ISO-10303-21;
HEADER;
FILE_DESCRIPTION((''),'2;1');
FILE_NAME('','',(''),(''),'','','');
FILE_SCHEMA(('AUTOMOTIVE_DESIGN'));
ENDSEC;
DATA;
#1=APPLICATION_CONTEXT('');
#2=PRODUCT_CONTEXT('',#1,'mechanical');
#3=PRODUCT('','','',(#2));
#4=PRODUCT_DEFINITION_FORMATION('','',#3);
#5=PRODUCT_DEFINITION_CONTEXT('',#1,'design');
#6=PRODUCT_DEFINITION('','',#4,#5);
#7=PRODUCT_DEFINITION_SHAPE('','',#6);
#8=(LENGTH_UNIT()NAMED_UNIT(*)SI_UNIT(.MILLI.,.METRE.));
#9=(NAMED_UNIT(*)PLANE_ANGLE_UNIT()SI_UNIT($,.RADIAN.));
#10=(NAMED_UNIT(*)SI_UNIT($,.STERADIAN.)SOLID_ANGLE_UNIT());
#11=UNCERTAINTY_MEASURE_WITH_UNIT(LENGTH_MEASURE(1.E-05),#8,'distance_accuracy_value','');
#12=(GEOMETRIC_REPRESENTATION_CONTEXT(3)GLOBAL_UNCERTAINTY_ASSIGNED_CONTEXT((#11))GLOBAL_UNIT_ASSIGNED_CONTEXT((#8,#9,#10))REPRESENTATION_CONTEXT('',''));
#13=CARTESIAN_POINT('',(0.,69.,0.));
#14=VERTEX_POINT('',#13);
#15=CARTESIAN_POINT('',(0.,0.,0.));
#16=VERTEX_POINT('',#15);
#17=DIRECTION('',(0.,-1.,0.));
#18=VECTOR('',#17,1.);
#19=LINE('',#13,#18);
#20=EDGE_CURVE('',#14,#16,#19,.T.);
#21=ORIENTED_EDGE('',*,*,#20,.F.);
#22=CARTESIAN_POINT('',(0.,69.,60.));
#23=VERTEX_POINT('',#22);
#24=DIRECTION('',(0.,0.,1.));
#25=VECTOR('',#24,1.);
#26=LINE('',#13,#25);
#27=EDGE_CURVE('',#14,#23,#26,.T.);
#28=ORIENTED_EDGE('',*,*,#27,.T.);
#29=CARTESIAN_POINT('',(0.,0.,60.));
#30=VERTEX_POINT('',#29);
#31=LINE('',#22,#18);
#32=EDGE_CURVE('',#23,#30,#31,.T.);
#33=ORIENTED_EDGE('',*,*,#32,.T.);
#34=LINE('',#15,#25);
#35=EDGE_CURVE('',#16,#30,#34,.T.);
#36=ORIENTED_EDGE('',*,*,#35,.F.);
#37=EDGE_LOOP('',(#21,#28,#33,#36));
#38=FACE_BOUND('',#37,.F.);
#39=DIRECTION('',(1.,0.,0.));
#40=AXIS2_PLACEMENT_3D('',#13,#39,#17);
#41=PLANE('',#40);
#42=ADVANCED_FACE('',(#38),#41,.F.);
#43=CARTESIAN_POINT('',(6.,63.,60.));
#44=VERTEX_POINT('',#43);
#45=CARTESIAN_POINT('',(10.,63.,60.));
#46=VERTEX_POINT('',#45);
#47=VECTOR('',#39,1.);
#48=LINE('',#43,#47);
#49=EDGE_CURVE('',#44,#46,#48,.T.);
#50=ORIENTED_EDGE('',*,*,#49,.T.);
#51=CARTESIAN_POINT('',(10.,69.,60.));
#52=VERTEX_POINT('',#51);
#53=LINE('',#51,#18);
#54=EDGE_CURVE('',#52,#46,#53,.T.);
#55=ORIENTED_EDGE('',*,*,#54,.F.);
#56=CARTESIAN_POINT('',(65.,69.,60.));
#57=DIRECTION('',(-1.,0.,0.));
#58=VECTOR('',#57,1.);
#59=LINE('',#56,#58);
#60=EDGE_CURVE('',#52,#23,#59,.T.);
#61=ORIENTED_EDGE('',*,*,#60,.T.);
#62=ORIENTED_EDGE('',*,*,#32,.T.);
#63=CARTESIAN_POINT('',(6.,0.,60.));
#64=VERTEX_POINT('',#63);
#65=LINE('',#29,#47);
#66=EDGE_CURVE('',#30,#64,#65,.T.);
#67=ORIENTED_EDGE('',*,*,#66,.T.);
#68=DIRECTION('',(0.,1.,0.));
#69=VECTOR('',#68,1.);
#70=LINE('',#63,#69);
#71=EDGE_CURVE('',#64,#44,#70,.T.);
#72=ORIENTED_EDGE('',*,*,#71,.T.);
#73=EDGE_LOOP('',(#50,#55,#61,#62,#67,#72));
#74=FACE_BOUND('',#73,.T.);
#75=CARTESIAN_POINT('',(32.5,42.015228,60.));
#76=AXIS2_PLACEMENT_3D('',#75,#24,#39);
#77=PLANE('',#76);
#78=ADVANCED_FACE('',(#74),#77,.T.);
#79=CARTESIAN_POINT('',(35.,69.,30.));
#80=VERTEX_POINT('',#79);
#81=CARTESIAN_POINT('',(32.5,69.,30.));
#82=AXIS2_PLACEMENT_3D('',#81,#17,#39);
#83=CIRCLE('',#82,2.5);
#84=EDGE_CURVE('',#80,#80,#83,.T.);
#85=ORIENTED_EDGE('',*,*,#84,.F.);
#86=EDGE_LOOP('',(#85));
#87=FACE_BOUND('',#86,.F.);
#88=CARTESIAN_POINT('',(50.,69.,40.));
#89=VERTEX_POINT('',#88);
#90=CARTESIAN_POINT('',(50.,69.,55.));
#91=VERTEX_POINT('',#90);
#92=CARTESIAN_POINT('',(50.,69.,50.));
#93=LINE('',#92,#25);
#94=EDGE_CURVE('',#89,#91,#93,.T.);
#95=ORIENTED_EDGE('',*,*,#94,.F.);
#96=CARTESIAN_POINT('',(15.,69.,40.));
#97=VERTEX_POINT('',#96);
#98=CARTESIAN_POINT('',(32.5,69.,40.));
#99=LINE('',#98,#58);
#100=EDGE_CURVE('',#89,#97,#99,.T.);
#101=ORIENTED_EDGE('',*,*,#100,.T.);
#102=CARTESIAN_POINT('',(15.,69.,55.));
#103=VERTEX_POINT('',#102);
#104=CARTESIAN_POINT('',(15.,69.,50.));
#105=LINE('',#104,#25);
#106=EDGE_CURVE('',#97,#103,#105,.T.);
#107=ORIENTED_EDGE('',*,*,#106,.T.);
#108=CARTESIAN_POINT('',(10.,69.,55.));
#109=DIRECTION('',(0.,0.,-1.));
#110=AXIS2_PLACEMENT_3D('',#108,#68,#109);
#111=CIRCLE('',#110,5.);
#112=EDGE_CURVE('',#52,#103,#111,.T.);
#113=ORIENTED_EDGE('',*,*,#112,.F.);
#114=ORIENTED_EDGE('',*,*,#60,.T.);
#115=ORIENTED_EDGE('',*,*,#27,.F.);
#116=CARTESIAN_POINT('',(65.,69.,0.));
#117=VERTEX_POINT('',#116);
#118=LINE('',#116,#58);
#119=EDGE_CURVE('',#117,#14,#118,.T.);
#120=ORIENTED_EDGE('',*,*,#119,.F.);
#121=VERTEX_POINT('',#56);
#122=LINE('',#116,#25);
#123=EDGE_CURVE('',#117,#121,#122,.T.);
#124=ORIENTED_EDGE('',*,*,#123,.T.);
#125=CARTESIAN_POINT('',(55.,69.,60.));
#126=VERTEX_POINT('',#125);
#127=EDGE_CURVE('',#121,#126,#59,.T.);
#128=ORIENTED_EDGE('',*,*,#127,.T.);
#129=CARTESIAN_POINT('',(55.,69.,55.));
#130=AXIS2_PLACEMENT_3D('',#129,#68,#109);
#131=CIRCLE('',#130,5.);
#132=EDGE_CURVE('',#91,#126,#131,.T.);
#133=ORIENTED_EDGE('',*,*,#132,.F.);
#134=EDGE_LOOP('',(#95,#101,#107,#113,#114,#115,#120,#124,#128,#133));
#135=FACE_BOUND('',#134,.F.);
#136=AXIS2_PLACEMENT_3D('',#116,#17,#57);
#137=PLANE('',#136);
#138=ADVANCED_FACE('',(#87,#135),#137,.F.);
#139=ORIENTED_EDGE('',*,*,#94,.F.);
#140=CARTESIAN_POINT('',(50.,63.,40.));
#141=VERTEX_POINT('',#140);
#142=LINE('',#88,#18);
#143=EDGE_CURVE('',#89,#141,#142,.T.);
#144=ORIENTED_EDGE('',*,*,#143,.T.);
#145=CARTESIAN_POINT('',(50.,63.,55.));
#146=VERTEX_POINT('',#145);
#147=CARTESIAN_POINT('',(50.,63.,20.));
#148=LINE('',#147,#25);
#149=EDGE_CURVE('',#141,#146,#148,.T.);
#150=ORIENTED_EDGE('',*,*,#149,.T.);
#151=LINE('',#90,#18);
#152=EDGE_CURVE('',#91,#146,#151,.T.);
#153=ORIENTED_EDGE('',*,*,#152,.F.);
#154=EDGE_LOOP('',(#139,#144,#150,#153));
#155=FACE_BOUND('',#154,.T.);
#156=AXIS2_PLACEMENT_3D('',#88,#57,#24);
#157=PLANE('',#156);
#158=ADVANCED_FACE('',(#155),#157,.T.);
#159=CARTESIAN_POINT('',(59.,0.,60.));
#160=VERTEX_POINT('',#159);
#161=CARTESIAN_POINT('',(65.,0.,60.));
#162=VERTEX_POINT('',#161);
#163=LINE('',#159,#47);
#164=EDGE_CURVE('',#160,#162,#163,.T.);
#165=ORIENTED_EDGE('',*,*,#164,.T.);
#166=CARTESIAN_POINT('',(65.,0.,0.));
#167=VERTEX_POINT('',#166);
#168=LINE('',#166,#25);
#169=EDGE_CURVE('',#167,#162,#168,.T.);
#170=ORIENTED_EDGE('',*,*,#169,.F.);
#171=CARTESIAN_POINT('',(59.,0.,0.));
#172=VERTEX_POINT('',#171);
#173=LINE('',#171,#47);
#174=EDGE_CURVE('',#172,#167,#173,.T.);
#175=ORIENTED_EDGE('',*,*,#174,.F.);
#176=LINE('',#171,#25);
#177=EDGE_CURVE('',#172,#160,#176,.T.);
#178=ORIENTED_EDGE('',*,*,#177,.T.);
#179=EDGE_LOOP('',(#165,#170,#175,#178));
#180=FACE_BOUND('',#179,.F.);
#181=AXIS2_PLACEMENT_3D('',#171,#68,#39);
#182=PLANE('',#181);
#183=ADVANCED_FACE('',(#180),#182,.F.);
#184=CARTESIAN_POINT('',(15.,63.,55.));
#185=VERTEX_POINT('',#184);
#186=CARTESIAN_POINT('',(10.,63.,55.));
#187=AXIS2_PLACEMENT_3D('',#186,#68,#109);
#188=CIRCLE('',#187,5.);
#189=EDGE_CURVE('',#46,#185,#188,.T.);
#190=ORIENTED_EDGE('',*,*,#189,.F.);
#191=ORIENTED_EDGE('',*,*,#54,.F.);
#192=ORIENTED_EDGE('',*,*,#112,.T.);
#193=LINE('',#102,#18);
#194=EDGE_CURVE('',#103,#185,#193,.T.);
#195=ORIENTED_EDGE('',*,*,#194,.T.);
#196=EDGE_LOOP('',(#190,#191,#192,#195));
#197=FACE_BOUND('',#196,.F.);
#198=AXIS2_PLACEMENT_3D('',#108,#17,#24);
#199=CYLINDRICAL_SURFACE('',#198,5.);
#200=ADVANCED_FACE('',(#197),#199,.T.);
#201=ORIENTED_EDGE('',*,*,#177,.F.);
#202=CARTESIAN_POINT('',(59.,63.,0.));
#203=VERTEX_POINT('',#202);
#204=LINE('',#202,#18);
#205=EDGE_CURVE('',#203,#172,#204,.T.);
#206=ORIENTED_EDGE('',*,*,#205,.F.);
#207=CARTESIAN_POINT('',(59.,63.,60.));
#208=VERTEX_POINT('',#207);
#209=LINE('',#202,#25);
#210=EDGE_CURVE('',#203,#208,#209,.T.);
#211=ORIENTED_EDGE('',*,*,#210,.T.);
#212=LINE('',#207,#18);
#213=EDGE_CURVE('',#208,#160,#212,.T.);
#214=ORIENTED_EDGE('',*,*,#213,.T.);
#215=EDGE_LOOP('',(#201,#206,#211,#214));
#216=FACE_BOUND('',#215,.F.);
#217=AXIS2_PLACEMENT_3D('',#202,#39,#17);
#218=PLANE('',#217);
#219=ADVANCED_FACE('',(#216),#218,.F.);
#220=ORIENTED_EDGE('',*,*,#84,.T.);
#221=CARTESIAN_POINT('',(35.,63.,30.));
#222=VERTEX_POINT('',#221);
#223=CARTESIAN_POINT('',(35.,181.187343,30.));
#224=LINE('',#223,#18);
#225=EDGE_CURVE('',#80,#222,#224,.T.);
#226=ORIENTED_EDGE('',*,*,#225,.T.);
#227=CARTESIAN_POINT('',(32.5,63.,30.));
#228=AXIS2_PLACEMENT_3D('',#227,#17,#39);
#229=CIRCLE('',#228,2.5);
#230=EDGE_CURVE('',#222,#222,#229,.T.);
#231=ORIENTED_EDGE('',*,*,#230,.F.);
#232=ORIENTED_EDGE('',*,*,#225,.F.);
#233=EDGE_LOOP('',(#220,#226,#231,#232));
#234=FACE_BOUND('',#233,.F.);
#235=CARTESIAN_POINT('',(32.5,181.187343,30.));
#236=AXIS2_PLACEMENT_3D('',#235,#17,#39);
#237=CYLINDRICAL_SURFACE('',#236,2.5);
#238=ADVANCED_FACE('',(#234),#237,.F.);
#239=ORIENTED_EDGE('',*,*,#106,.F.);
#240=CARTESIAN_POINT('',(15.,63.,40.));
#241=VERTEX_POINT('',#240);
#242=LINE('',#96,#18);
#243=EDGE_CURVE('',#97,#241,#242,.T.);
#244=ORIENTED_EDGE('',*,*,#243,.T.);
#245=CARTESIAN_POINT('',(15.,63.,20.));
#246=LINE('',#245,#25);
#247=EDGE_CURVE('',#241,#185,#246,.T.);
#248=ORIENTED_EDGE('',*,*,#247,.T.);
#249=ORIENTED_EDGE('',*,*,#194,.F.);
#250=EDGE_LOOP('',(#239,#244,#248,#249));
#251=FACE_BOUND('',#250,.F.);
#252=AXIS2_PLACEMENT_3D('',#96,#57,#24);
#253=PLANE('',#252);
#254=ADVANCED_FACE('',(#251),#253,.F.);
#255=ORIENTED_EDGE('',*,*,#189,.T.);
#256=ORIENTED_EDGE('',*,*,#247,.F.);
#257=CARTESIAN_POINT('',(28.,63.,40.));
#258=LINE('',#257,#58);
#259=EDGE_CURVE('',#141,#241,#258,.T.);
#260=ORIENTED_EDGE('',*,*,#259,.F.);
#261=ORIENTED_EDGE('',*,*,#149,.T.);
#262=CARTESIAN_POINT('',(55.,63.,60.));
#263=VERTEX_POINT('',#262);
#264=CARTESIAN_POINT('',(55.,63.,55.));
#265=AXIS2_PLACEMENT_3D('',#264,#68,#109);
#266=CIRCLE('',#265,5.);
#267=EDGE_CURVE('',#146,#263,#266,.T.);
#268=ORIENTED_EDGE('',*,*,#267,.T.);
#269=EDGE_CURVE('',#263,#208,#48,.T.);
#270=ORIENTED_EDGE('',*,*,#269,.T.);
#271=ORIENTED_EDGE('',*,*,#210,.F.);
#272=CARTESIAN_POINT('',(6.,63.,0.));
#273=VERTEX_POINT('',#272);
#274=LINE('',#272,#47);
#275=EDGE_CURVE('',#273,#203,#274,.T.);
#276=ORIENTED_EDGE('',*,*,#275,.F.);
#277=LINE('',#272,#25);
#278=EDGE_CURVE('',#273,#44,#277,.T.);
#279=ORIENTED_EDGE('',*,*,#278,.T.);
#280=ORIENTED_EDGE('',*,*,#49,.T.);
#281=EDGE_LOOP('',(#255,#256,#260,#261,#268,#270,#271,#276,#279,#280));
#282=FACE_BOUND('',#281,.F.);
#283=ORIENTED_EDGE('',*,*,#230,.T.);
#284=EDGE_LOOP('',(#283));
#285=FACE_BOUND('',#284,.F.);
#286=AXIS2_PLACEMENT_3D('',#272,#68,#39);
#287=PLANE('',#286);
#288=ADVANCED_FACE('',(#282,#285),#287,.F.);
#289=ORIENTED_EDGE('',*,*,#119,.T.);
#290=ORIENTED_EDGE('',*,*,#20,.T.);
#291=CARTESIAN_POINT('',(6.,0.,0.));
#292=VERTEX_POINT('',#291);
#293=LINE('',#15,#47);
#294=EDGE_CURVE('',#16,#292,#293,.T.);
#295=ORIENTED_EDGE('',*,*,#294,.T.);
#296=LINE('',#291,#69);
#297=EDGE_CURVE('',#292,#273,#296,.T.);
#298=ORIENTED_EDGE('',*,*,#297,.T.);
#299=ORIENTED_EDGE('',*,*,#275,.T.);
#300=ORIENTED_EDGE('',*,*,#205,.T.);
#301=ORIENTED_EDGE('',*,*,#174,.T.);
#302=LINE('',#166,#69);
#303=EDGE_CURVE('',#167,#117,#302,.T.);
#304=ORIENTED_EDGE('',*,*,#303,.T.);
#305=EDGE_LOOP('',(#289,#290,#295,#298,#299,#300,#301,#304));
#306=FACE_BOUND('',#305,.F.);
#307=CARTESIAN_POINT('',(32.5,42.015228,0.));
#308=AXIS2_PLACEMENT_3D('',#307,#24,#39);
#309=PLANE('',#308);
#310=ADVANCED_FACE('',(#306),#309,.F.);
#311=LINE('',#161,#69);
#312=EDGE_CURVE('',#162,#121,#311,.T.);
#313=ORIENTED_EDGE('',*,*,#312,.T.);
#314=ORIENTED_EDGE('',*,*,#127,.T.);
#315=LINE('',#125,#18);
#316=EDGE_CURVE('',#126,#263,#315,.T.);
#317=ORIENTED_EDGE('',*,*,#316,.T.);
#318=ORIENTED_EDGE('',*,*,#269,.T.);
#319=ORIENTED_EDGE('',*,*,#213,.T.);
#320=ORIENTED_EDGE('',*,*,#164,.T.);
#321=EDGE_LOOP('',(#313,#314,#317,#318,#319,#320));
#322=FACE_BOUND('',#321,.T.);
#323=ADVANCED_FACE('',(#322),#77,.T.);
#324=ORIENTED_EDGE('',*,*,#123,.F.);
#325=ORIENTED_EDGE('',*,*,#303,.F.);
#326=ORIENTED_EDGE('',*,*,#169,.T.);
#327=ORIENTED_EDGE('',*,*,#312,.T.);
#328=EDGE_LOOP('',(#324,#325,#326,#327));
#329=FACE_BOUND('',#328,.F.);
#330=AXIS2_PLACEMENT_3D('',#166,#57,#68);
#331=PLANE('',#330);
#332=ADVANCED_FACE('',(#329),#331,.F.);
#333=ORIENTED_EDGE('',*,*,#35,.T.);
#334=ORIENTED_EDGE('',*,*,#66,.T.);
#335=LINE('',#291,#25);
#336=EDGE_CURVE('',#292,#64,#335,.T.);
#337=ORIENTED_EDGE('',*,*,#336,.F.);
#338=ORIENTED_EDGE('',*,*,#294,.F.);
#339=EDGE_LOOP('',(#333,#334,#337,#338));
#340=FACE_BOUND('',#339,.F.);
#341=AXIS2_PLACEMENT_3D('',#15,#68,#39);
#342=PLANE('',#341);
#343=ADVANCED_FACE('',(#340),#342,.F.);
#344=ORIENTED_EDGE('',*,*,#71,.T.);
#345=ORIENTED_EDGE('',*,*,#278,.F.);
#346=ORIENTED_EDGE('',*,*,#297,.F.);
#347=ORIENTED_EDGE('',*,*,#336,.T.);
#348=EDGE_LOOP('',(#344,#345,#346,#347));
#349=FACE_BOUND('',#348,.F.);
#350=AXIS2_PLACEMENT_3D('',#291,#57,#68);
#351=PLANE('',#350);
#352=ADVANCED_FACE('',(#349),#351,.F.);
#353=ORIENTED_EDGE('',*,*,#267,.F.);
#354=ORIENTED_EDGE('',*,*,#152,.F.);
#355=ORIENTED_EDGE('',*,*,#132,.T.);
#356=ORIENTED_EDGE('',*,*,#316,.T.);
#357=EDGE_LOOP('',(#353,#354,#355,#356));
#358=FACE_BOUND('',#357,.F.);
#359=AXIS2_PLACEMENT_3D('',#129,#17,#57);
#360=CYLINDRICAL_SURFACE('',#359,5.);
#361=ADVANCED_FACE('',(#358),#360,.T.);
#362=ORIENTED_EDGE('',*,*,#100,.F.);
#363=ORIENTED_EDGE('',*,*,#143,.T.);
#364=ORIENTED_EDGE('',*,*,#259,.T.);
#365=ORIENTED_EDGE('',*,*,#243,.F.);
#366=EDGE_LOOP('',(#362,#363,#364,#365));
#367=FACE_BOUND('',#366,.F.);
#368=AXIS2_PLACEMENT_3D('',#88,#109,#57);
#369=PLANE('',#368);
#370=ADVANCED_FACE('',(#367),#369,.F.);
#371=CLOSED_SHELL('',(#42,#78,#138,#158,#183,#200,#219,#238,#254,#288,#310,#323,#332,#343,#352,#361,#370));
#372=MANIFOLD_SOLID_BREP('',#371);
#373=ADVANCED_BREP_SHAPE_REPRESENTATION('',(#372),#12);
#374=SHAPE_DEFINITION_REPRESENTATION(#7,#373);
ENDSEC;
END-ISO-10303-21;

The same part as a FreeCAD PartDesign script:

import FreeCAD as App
import Part
import Sketcher

V = App.Vector
Q = App.Units.Quantity


def edges_at(feature, points):
    """Names of the edges that pass closest to the given points."""
    edges = feature.Shape.Edges
    near = lambda p: min(range(len(edges)), key=lambda i: edges[i].distToShape(Part.Vertex(*p))[0])
    return sorted({f"Edge{near(p) + 1}" for p in points})


def add_polygon(sketch, points):
    """Adds a closed chain of lines whose ends are joined by coincident constraints."""
    first, n = sketch.GeometryCount, len(points)
    for a, b in zip(points, points[1:] + points[:1]):
        sketch.addGeometry(Part.LineSegment(App.Vector(*a, 0), App.Vector(*b, 0)), False)
    for i in range(n):
        sketch.addConstraint(Sketcher.Constraint("Coincident", first + i, 2, first + (i + 1) % n, 1))

doc = App.newDocument("Part")
body = doc.addObject("PartDesign::Body", "Body")

# Sketch on XY plane
sketch1 = doc.addObject("Sketcher::SketchObject", "Sketch")
body.addObject(sketch1)
sketch1.AttachmentSupport = (doc.XY_Plane, [""])
sketch1.MapMode = "FlatFace"
add_polygon(sketch1, [(0, 69), (0, 0), (6, 0), (6, 63), (59, 63), (59, 0), (65, 0), (65, 69)])  # lines 0-7
sketch1.addConstraint([
    Sketcher.Constraint("Vertical", 0),
    Sketcher.Constraint("Horizontal", 1),
    Sketcher.Constraint("Vertical", 2),
    Sketcher.Constraint("Horizontal", 3),
    Sketcher.Constraint("Vertical", 4),
    Sketcher.Constraint("Horizontal", 5),
    Sketcher.Constraint("Vertical", 6),
    Sketcher.Constraint("Horizontal", 7),
    Sketcher.Constraint("Coincident", 0, 2, -1, 1),
    Sketcher.Constraint("PointOnObject", 4, 2, -1),
    Sketcher.Constraint("Equal", 1, 5),
    Sketcher.Constraint("DistanceX", 1, 1, 1, 2, Q("6 mm")),
    Sketcher.Constraint("DistanceX", 3, 1, 3, 2, Q("53 mm")),
    Sketcher.Constraint("DistanceY", 0, 2, 0, 1, Q("69 mm")),
    Sketcher.Constraint("DistanceY", 2, 1, 2, 2, Q("63 mm")),
])
pad1 = doc.addObject("PartDesign::Pad", "Pad")
body.addObject(pad1)
pad1.Profile = sketch1
pad1.Length = 60

# Sketch on XZ plane
sketch2 = doc.addObject("Sketcher::SketchObject", "Sketch001")
body.addObject(sketch2)
sketch2.AttachmentSupport = (doc.XZ_Plane, [""])
sketch2.MapMode = "FlatFace"
sketch2.AttachmentOffset = App.Placement(V(0, 0, -69), App.Rotation())
sketch2.addGeometry(Part.Circle(V(32.5, 30, 0), V(0, 0, 1), 2.5), False)
sketch2.addConstraint([
    Sketcher.Constraint("Diameter", 0, Q("5 mm")),
    Sketcher.Constraint("DistanceY", -1, 1, 0, 3, Q("30 mm")),
    Sketcher.Constraint("DistanceX", -1, 1, 0, 3, Q("32.5 mm")),
])
doc.recompute()
hole = doc.addObject("PartDesign::Hole", "Hole")
body.addObject(hole)
hole.Profile = sketch2
hole.ThreadType = "None"
hole.Diameter = 5
hole.DepthType = "ThroughAll"
hole.Reversed = True

# Sketch on XZ plane
sketch3 = doc.addObject("Sketcher::SketchObject", "Sketch002")
body.addObject(sketch3)
sketch3.AttachmentSupport = (doc.XZ_Plane, [""])
sketch3.MapMode = "FlatFace"
sketch3.AttachmentOffset = App.Placement(V(0, 0, -69), App.Rotation())
add_polygon(sketch3, [(50, 60), (50, 40), (15, 40), (15, 60)])  # lines 0-3
sketch3.addConstraint([
    Sketcher.Constraint("Vertical", 0),
    Sketcher.Constraint("Horizontal", 1),
    Sketcher.Constraint("Vertical", 2),
    Sketcher.Constraint("Horizontal", 3),
    Sketcher.Constraint("DistanceX", 1, 2, 1, 1, Q("35 mm")),
    Sketcher.Constraint("DistanceY", 0, 2, 0, 1, Q("20 mm")),
    Sketcher.Constraint("DistanceX", -1, 1, 0, 2, Q("50 mm")),
    Sketcher.Constraint("DistanceY", -1, 1, 0, 2, Q("40 mm")),
])
pocket1 = doc.addObject("PartDesign::Pocket", "Pocket")
body.addObject(pocket1)
pocket1.Profile = sketch3
pocket1.Length = 25
pocket1.Reversed = True
doc.recompute()

fillet = doc.addObject("PartDesign::Fillet", "Fillet")
body.addObject(fillet)
fillet.Base = (pocket1, edges_at(pocket1, [(15, 66, 60), (50, 66, 60)]))
fillet.Radius = 5

doc.recompute()
